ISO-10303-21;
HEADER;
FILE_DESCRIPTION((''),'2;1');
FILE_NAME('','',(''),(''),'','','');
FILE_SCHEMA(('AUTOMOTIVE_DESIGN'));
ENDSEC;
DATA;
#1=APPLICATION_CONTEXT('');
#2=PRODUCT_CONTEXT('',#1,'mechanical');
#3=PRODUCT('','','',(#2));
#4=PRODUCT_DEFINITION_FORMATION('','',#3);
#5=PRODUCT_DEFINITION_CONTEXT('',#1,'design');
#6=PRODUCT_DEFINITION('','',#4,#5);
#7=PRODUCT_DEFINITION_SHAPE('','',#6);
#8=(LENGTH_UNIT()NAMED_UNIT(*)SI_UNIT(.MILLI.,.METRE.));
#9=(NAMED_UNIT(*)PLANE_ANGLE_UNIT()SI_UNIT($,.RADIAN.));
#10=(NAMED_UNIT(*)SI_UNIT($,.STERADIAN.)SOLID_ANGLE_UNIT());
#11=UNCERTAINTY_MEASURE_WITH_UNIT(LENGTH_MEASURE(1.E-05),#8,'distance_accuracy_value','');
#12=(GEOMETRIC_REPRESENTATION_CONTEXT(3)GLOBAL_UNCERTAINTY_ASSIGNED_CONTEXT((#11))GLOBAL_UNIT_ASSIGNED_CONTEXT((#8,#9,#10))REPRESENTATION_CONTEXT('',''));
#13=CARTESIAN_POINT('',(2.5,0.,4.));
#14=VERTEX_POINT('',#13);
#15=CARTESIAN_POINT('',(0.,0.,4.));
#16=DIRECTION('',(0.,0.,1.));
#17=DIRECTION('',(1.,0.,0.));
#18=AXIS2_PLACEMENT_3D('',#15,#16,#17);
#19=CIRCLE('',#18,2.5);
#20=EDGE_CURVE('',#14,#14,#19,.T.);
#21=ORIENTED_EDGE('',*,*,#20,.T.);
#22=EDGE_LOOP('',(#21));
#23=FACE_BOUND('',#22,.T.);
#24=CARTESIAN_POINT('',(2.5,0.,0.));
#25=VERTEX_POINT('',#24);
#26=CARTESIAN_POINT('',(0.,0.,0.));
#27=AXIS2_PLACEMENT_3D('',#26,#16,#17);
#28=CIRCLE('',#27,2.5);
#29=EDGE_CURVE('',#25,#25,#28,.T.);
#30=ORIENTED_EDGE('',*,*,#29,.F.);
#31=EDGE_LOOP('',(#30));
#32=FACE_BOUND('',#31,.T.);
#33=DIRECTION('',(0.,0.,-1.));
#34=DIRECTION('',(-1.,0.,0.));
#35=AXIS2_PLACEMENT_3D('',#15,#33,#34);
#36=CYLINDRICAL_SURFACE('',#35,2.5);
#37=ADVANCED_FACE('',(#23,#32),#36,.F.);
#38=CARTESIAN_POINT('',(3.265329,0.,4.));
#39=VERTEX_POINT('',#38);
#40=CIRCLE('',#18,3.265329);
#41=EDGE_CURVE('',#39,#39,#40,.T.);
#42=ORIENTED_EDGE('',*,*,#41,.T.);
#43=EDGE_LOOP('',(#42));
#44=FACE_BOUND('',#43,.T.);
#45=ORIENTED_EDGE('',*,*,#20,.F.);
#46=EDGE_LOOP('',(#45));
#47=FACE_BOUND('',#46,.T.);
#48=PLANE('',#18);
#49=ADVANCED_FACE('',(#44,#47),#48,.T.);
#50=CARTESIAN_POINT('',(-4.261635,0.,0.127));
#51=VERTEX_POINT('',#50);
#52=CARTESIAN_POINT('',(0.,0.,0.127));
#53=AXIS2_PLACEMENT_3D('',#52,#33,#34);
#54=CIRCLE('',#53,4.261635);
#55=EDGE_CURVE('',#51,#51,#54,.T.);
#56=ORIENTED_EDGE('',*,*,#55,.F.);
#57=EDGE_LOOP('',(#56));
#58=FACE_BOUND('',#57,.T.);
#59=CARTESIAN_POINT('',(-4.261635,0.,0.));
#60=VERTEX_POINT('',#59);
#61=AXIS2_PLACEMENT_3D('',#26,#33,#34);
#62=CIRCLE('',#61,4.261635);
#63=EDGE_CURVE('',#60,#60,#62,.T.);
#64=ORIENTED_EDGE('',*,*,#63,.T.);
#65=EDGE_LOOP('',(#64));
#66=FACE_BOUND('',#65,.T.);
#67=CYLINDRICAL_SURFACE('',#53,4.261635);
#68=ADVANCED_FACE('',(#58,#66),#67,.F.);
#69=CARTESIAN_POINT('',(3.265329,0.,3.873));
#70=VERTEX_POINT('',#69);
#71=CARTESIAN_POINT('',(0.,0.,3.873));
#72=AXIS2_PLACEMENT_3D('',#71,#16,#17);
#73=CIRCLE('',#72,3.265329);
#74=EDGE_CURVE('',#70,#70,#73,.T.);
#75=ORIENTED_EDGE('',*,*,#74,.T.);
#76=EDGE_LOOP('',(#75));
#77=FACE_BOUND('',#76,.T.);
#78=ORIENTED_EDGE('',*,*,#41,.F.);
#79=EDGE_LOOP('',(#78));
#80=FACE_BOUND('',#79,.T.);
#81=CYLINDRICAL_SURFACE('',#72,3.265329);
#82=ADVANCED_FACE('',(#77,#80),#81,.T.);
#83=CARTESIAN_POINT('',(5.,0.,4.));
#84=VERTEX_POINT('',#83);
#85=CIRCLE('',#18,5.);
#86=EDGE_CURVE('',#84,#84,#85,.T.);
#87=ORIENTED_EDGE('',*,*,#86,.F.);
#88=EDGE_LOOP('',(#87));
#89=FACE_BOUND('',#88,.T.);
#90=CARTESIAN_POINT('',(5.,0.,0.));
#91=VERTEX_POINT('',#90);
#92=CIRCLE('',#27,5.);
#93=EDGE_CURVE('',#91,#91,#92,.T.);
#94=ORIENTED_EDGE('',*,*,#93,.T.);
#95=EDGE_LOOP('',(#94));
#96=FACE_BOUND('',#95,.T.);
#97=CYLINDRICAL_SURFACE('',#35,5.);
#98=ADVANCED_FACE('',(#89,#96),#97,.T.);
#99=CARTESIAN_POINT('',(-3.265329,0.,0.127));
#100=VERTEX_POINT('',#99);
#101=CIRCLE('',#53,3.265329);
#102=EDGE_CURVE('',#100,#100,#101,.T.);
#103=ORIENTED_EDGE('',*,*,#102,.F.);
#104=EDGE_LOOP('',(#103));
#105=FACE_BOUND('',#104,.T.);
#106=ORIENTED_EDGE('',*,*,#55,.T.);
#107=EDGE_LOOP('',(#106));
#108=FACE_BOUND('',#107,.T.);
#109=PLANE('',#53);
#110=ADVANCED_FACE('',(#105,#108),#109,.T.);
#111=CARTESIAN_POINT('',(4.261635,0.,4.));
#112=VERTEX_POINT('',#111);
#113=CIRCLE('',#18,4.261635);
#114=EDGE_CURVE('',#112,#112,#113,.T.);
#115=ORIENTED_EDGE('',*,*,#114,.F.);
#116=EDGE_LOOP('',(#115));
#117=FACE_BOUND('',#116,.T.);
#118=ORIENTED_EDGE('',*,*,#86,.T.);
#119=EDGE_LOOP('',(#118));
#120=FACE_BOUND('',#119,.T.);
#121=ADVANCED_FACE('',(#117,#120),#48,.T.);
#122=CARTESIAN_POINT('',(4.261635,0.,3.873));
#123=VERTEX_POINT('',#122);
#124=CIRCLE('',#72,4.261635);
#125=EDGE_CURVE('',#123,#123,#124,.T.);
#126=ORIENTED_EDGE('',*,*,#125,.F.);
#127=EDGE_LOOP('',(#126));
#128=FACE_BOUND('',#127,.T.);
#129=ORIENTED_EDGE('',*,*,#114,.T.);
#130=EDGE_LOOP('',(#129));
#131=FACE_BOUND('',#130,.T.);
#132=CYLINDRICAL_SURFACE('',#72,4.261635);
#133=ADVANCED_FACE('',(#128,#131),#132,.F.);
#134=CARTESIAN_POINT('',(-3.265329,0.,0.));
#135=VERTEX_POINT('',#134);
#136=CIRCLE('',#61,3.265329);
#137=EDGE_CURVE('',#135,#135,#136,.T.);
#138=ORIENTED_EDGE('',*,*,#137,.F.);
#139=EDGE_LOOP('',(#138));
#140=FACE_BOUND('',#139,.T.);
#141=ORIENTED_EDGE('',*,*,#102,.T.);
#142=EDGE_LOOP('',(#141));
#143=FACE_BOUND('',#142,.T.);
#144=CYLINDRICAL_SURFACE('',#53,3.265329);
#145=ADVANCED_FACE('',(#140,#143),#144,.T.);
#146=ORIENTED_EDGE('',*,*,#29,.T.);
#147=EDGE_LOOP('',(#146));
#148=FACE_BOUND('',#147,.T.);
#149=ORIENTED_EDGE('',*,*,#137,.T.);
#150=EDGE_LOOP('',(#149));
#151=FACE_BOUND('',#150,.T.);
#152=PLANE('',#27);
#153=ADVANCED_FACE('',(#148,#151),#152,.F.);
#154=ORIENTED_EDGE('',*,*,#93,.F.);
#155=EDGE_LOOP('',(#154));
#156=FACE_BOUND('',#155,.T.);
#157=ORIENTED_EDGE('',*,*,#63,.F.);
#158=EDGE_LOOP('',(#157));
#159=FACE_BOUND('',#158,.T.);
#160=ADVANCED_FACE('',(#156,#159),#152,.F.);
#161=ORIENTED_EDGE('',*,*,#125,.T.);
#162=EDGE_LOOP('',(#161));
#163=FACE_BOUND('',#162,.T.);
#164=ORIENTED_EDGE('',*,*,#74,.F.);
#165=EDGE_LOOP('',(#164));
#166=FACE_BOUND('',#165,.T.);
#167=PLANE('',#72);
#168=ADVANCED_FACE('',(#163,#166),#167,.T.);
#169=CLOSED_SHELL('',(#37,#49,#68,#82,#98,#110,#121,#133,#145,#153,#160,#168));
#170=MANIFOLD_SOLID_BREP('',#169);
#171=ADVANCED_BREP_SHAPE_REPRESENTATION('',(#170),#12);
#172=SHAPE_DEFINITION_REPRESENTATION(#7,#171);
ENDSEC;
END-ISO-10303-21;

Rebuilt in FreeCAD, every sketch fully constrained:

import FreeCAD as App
import Part
import Sketcher

V = App.Vector
Q = App.Units.Quantity

doc = App.newDocument("Part")
body = doc.addObject("PartDesign::Body", "Body")

sketch1 = doc.addObject("Sketcher::SketchObject", "Sketch")
body.addObject(sketch1)
sketch1.AttachmentSupport = (doc.XY_Plane, [""])
sketch1.MapMode = "FlatFace"
sketch1.addGeometry(Part.Circle(V(0, 0, 0), V(0, 0, 1), 5), False)
sketch1.addGeometry(Part.Circle(V(0, 0, 0), V(0, 0, 1), 2.5), False)
sketch1.addConstraint(Sketcher.Constraint("Coincident", 0, 3, -1, 1))
sketch1.addConstraint(Sketcher.Constraint("Coincident", 1, 3, -1, 1))
sketch1.addConstraint(Sketcher.Constraint("Diameter", 0, Q("10 mm")))
sketch1.addConstraint(Sketcher.Constraint("Diameter", 1, Q("5 mm")))
pad1 = doc.addObject("PartDesign::Pad", "Pad")
body.addObject(pad1)
pad1.Profile = sketch1
pad1.Length = 4

sketch2 = doc.addObject("Sketcher::SketchObject", "Sketch001")
body.addObject(sketch2)
sketch2.AttachmentSupport = (doc.XY_Plane, [""])
sketch2.MapMode = "FlatFace"
sketch2.AttachmentOffset = App.Placement(V(0, 0, 4), App.Rotation())
sketch2.addGeometry(Part.Circle(V(0, 0, 0), V(0, 0, 1), 4.3), False)
sketch2.addGeometry(Part.Circle(V(0, 0, 0), V(0, 0, 1), 3.3), False)
sketch2.addConstraint(Sketcher.Constraint("Coincident", 0, 3, -1, 1))
sketch2.addConstraint(Sketcher.Constraint("Coincident", 1, 3, -1, 1))
sketch2.addConstraint(Sketcher.Constraint("Diameter", 0, Q("8.52327 mm")))
sketch2.addConstraint(Sketcher.Constraint("Diameter", 1, Q("6.530657 mm")))
pocket1 = doc.addObject("PartDesign::Pocket", "Pocket")
body.addObject(pocket1)
pocket1.Profile = sketch2
pocket1.Length = 0.127

sketch3 = doc.addObject("Sketcher::SketchObject", "Sketch002")
body.addObject(sketch3)
sketch3.AttachmentSupport = (doc.XY_Plane, [""])
sketch3.MapMode = "FlatFace"
sketch3.AttachmentOffset = App.Placement(V(0, 0, 0.127), App.Rotation())
sketch3.addGeometry(Part.Circle(V(0, 0, 0), V(0, 0, 1), 4.3), False)
sketch3.addGeometry(Part.Circle(V(0, 0, 0), V(0, 0, 1), 3.3), False)
sketch3.addConstraint(Sketcher.Constraint("Coincident", 0, 3, -1, 1))
sketch3.addConstraint(Sketcher.Constraint("Coincident", 1, 3, -1, 1))
sketch3.addConstraint(Sketcher.Constraint("Diameter", 0, Q("8.52327 mm")))
sketch3.addConstraint(Sketcher.Constraint("Diameter", 1, Q("6.530657 mm")))
pocket2 = doc.addObject("PartDesign::Pocket", "Pocket001")
body.addObject(pocket2)
pocket2.Profile = sketch3
pocket2.Length = 0.127

doc.recompute()
